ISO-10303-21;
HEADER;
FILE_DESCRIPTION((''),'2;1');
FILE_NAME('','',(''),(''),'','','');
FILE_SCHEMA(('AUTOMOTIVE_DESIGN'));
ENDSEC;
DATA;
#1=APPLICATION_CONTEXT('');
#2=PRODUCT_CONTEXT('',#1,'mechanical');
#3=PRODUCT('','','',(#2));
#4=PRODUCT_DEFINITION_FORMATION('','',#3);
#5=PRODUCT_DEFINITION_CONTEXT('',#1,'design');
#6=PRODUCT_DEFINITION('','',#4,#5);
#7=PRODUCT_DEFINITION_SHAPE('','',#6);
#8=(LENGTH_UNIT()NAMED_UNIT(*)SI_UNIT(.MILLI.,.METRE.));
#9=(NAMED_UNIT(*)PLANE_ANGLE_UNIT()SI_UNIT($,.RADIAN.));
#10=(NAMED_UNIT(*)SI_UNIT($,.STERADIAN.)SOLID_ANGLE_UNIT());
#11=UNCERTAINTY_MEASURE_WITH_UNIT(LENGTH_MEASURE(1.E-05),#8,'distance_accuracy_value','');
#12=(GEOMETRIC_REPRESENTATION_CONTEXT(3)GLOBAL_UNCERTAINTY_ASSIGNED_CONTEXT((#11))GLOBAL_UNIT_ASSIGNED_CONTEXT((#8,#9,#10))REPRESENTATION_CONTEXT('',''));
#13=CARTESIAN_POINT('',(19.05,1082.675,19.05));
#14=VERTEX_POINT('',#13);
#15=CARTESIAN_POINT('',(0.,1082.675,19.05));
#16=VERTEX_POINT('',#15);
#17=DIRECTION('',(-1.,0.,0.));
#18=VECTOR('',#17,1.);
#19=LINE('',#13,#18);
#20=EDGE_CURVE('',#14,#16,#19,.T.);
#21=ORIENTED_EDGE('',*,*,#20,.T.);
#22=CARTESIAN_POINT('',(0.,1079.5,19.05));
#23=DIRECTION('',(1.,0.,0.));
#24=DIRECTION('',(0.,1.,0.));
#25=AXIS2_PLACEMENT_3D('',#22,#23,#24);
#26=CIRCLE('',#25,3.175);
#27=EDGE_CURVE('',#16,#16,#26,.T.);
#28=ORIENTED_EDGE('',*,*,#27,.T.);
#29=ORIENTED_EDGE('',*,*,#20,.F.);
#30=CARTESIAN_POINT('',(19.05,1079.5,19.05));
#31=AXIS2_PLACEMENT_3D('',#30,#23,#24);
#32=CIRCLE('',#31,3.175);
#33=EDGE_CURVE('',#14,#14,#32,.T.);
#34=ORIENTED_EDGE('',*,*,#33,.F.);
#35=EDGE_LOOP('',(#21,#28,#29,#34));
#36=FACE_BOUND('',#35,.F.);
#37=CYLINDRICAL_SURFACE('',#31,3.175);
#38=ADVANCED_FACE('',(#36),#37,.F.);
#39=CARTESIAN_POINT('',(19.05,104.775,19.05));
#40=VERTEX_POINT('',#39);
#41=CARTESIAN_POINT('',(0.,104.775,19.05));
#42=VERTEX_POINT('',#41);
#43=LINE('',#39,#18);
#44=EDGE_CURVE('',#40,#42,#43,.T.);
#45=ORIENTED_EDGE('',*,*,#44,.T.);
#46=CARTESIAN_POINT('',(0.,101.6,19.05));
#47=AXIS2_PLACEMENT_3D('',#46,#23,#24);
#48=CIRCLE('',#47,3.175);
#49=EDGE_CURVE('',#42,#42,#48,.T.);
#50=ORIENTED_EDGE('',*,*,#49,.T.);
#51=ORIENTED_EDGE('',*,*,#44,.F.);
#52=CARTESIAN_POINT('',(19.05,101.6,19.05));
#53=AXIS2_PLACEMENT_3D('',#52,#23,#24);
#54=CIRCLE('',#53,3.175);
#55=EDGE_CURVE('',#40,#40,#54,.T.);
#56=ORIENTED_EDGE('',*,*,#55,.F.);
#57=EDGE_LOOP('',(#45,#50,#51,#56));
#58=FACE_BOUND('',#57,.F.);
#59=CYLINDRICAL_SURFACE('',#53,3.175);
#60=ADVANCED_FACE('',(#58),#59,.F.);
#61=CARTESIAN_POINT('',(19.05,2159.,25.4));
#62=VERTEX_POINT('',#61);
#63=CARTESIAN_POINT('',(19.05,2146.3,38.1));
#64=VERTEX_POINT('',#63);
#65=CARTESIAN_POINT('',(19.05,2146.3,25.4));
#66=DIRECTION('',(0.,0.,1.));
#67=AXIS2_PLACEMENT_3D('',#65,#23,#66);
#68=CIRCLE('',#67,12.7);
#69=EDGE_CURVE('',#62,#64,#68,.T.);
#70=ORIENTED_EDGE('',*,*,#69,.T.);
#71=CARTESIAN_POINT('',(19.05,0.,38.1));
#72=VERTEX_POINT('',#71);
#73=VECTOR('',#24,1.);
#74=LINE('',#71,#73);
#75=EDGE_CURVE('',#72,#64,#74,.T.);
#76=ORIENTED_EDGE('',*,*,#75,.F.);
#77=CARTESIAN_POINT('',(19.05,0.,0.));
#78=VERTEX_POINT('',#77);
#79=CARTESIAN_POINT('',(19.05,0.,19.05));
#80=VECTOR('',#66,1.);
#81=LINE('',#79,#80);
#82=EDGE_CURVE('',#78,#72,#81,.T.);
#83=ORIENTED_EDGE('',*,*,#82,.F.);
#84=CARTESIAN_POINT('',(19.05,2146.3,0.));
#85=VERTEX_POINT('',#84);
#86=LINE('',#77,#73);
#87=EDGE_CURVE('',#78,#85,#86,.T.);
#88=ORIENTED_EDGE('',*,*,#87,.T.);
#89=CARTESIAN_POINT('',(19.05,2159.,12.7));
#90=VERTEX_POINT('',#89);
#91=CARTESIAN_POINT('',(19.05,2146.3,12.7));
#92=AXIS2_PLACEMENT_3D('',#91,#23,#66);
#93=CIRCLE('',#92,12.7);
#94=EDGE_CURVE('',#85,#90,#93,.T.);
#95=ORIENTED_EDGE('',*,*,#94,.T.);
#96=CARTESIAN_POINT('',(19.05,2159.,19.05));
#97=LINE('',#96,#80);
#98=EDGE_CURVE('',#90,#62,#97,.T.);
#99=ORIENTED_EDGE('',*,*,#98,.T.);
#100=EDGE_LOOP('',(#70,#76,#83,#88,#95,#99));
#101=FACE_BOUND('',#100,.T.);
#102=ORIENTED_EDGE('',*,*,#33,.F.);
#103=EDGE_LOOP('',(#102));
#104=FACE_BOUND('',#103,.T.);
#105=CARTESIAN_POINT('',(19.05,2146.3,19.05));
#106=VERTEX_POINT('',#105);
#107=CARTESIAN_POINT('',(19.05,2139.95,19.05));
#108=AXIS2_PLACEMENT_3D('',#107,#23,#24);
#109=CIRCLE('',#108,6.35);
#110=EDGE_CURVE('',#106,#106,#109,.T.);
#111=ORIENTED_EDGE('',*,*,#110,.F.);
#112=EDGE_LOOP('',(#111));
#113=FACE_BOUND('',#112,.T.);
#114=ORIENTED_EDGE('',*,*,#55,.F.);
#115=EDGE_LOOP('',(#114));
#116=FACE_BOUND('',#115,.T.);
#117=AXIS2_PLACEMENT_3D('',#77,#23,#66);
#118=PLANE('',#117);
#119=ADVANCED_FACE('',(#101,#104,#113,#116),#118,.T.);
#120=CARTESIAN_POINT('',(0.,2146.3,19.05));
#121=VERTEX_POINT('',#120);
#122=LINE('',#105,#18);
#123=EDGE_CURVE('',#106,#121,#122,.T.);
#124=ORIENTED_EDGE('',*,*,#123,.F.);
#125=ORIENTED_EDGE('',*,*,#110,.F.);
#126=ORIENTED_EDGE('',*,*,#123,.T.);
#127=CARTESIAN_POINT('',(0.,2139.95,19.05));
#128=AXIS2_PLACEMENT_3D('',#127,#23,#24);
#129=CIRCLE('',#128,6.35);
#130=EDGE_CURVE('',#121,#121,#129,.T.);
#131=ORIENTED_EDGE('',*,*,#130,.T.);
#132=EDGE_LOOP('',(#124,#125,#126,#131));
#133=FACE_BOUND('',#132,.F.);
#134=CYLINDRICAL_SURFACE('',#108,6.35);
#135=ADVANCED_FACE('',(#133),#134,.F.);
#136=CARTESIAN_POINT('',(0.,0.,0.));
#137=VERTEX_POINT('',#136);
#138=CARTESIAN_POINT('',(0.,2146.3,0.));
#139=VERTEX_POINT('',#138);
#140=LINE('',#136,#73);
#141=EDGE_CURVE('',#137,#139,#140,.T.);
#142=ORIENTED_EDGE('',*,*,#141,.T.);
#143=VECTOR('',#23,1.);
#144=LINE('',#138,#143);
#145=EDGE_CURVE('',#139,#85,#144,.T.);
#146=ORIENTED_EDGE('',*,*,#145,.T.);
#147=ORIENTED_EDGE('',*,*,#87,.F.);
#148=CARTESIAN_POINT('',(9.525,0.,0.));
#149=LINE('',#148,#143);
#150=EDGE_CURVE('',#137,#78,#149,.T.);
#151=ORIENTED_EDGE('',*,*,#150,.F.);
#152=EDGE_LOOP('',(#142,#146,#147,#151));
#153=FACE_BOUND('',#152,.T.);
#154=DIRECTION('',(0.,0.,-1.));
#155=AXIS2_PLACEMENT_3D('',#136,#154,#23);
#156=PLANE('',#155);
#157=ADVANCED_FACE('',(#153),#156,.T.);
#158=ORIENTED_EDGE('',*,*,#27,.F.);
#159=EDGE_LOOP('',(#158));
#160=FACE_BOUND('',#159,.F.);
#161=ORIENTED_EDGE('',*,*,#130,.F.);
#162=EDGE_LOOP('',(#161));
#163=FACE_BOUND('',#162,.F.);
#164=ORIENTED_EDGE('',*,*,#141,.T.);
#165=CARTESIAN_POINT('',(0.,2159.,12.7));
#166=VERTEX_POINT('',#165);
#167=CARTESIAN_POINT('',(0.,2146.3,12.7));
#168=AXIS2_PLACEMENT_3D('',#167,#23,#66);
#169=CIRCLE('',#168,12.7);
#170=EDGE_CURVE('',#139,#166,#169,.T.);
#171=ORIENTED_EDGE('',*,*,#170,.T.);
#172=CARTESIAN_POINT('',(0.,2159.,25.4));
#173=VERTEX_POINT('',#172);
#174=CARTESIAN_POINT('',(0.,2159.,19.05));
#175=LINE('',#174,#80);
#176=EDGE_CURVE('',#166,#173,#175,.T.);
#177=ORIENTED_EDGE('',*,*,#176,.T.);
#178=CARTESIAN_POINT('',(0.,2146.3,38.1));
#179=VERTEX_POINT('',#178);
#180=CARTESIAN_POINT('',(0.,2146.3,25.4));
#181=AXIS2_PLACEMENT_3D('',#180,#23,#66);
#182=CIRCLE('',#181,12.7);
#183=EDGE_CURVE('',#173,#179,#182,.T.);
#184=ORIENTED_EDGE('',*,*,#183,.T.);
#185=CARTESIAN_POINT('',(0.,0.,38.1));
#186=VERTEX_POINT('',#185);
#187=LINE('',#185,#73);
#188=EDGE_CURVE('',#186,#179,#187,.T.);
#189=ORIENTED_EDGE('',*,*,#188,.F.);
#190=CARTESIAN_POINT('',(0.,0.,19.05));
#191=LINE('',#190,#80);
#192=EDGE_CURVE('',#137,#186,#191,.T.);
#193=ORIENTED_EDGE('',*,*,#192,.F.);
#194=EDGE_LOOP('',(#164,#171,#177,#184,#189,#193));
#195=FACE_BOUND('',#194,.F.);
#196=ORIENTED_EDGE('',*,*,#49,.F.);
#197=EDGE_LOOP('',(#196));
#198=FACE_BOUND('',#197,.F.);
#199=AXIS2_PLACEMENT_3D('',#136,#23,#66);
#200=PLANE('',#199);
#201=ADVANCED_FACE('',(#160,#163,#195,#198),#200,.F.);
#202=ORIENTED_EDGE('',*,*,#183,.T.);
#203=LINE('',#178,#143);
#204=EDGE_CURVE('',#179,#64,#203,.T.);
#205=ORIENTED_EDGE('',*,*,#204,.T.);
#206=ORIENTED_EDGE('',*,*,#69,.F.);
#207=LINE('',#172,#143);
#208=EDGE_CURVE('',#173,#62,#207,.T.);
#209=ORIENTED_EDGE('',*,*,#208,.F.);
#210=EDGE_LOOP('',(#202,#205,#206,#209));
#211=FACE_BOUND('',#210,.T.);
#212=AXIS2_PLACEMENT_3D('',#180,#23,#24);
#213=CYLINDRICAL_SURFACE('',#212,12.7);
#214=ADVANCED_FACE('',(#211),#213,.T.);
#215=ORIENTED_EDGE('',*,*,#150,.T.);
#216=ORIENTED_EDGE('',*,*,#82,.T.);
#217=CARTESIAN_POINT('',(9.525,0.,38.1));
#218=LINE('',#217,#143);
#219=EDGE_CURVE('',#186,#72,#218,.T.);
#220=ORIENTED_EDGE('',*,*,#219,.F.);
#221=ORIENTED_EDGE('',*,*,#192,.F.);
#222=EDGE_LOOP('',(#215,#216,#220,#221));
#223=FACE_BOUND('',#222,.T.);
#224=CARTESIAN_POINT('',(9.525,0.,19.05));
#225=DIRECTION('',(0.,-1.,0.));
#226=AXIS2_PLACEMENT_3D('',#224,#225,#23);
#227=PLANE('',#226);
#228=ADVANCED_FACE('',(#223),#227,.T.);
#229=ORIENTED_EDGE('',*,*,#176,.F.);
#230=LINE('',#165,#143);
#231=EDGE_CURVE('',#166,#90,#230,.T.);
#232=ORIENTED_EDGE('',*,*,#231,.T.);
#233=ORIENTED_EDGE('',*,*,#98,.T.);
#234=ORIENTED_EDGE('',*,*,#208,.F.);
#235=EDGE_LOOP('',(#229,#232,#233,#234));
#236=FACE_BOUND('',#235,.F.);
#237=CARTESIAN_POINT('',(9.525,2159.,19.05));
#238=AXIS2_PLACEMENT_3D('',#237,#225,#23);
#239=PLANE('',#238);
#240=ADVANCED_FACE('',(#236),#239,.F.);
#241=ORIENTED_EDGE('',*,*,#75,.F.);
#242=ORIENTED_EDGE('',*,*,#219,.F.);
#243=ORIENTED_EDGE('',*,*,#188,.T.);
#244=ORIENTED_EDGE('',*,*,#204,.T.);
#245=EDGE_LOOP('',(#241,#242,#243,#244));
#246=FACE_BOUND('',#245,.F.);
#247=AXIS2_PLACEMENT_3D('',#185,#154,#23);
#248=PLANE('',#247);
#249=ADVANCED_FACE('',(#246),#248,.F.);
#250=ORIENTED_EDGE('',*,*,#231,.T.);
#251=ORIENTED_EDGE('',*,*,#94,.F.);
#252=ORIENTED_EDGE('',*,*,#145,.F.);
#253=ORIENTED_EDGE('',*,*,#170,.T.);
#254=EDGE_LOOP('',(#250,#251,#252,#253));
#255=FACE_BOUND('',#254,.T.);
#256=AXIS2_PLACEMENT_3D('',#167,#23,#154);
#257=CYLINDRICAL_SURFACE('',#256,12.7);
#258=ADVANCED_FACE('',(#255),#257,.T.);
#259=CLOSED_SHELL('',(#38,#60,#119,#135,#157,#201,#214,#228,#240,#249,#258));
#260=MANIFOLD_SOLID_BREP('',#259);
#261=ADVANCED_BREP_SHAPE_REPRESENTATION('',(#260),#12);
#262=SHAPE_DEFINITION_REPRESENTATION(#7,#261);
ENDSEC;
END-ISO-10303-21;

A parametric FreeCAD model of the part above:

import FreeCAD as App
import Part
import Sketcher
from FreeCAD import Vector
Q = App.Units.Quantity


def edges_at(feature, points):
    """Names of the edges that pass closest to the given points."""
    edges = feature.Shape.Edges
    near = lambda p: min(range(len(edges)), key=lambda i: edges[i].distToShape(Part.Vertex(*p))[0])
    return sorted({f"Edge{near(p) + 1}" for p in points})

doc = App.newDocument("Part")
body = doc.addObject("PartDesign::Body", "Body")

# Sketch on XZ plane
sketch1 = body.newObject("Sketcher::SketchObject", "Sketch")
sketch1.AttachmentSupport = (doc.getObject("XZ_Plane"), [""])
sketch1.MapMode = "FlatFace"
sketch1.addGeometry(Part.LineSegment(Vector(0, 38, 0), Vector(0, 0, 0)), False)
sketch1.addGeometry(Part.LineSegment(Vector(0, 0, 0), Vector(19, 0, 0)), False)
sketch1.addGeometry(Part.LineSegment(Vector(19, 0, 0), Vector(19, 38, 0)), False)
sketch1.addGeometry(Part.LineSegment(Vector(19, 38, 0), Vector(0, 38, 0)), False)
sketch1.addConstraint(Sketcher.Constraint("Coincident", 0, 2, 1, 1))
sketch1.addConstraint(Sketcher.Constraint("Coincident", 1, 2, 2, 1))
sketch1.addConstraint(Sketcher.Constraint("Coincident", 2, 2, 3, 1))
sketch1.addConstraint(Sketcher.Constraint("Coincident", 3, 2, 0, 1))
sketch1.addConstraint(Sketcher.Constraint("Vertical", 0))
sketch1.addConstraint(Sketcher.Constraint("Horizontal", 1))
sketch1.addConstraint(Sketcher.Constraint("Vertical", 2))
sketch1.addConstraint(Sketcher.Constraint("Horizontal", 3))
sketch1.addConstraint(Sketcher.Constraint("Coincident", 0, 2, -1, 1))
sketch1.addConstraint(Sketcher.Constraint("DistanceY", 0, 2, 0, 1, Q("1.5 in")))
sketch1.addConstraint(Sketcher.Constraint("DistanceX", 1, 1, 1, 2, Q("0.75 in")))
pad1 = body.newObject("PartDesign::Pad", "Pad")
pad1.Profile = sketch1
pad1.Length = Q("85 in")
pad1.Reversed = True

# Sketch on YZ plane
sketch2 = body.newObject("Sketcher::SketchObject", "Sketch001")
sketch2.AttachmentSupport = (doc.getObject("YZ_Plane"), [""])
sketch2.MapMode = "FlatFace"
sketch2.AttachmentOffset = App.Placement(Vector(0, 0, 0.75 * 25.4), App.Rotation())
sketch2.addGeometry(Part.Circle(Vector(2139.9, 19.1, 0), Vector(0, 0, 1), 6.3), False)
sketch2.addGeometry(Part.Circle(Vector(1079.5, 19.1, 0), Vector(0, 0, 1), 3.2), False)
sketch2.addGeometry(Part.Circle(Vector(101.6, 19.1, 0), Vector(0, 0, 1), 3.2), False)
sketch2.addConstraint(Sketcher.Constraint("Equal", 1, 2))
sketch2.addConstraint(Sketcher.Constraint("Horizontal", 0, 3, 1, 3))
sketch2.addConstraint(Sketcher.Constraint("Horizontal", 1, 3, 2, 3))
sketch2.addConstraint(Sketcher.Constraint("Diameter", 0, Q("0.5 in")))
sketch2.addConstraint(Sketcher.Constraint("Diameter", 1, Q("0.25 in")))
sketch2.addConstraint(Sketcher.Constraint("DistanceX", -1, 1, 2, 3, Q("4 in")))
sketch2.addConstraint(Sketcher.Constraint("DistanceX", -1, 1, 1, 3, Q("42.5 in")))
sketch2.addConstraint(Sketcher.Constraint("DistanceX", -1, 1, 0, 3, Q("84.25 in")))
sketch2.addConstraint(Sketcher.Constraint("DistanceY", -1, 1, 0, 3, Q("0.75 in")))
pocket1 = body.newObject("PartDesign::Pocket", "Pocket")
pocket1.Profile = sketch2
pocket1.Type = "ThroughAll"
doc.recompute()

fillet = body.newObject("PartDesign::Fillet", "Fillet")
fillet.Base = (pocket1, edges_at(pocket1, [(9.525, 2159, 38.1), (9.525, 2159, 0)]))
fillet.Radius = Q("0.5 in")

doc.recompute()
